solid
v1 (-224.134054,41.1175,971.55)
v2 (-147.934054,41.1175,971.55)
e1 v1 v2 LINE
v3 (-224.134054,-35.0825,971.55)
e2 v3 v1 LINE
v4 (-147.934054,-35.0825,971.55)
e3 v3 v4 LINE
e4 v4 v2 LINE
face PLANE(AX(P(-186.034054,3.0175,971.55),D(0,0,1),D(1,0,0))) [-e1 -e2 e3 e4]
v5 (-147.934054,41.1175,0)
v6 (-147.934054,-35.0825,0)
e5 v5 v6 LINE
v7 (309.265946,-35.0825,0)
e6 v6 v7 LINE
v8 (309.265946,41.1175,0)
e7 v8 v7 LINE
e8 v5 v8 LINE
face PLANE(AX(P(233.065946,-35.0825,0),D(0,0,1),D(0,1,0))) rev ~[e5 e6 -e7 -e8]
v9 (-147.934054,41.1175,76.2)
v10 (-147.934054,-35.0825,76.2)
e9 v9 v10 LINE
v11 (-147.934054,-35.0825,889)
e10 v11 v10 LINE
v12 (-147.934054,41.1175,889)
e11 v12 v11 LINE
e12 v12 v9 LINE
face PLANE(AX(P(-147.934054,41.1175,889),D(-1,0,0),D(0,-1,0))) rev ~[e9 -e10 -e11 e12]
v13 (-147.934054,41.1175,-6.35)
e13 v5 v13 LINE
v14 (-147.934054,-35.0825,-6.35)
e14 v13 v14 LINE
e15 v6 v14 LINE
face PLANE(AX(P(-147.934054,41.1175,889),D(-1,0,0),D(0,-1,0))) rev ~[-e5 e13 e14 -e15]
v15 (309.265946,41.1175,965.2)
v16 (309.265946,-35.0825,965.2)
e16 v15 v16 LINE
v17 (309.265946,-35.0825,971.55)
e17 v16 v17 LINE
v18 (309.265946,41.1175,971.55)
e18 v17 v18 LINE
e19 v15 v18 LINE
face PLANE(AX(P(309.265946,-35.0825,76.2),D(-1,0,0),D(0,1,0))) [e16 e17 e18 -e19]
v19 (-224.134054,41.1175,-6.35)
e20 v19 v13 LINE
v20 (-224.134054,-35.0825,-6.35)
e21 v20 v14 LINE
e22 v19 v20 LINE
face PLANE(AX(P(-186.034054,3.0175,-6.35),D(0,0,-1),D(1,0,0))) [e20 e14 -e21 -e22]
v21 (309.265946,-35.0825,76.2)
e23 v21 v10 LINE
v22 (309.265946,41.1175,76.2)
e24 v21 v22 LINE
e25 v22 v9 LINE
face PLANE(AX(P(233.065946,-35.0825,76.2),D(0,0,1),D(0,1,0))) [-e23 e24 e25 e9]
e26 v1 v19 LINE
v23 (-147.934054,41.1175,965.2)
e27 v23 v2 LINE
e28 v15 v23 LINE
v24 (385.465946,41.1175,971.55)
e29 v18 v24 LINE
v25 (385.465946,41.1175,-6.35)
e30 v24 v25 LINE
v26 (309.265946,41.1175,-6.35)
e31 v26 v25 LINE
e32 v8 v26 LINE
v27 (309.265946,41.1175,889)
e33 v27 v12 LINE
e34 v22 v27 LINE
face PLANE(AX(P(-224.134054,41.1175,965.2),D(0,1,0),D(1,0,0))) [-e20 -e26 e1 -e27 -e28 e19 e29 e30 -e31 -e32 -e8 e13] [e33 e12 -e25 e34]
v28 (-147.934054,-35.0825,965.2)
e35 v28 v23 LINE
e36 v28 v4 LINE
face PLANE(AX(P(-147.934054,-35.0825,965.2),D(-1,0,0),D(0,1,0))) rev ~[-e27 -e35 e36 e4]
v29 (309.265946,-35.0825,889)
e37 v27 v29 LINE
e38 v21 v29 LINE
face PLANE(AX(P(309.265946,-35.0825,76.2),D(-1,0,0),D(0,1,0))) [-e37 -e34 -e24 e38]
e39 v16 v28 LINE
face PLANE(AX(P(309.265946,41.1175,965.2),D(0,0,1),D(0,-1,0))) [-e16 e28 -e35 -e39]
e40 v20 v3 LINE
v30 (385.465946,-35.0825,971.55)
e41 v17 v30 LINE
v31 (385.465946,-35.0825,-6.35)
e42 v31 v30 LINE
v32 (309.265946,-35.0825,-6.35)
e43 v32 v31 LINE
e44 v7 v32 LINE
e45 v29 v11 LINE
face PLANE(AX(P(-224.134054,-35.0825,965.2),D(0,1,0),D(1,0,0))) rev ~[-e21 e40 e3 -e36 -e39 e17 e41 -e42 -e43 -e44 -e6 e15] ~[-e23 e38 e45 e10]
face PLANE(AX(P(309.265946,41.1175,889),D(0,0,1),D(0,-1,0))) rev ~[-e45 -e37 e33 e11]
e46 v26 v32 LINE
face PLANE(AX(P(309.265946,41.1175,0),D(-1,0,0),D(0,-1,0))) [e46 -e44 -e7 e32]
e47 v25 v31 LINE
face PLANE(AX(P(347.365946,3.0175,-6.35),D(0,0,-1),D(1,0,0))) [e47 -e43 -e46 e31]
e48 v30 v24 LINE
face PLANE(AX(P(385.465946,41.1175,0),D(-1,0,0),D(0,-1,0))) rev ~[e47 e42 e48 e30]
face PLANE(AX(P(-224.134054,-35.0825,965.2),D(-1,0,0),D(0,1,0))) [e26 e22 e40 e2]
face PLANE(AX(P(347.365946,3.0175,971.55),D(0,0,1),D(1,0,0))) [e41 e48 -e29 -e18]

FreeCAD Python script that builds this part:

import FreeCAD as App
import Part
import Sketcher
Q = App.Units.Quantity

doc = App.newDocument("Part")
body = doc.addObject("PartDesign::Body", "Body")

sketch1 = body.newObject("Sketcher::SketchObject", "Sketch")
sketch1.AttachmentSupport = (doc.getObject("XY_Plane"), [""])
sketch1.MapMode = "FlatFace"
sketch1.addGeometry([
    Part.LineSegment(App.Vector(-224, 41, 0), App.Vector(-224, -35, 0)),
    Part.LineSegment(App.Vector(-224, -35, 0), App.Vector(233, -35, 0)),
    Part.LineSegment(App.Vector(233, -35, 0), App.Vector(233, 41, 0)),
    Part.LineSegment(App.Vector(233, 41, 0), App.Vector(-224, 41, 0)),
], False)
sketch1.addConstraint([
    Sketcher.Constraint("Coincident", 0, 2, 1, 1),
    Sketcher.Constraint("Coincident", 1, 2, 2, 1),
    Sketcher.Constraint("Coincident", 2, 2, 3, 1),
    Sketcher.Constraint("Coincident", 3, 2, 0, 1),
    Sketcher.Constraint("Vertical", 0),
    Sketcher.Constraint("Horizontal", 1),
    Sketcher.Constraint("Vertical", 2),
    Sketcher.Constraint("Horizontal", 3),
    Sketcher.Constraint("DistanceX", 1, 1, 1, 2, Q("18 in")),
    Sketcher.Constraint("DistanceY", 0, 2, 0, 1, Q("3 in")),
    Sketcher.Constraint("DistanceY", 0, 2, -1, 1, Q("35.0825 mm")),
    Sketcher.Constraint("DistanceX", 0, 2, -1, 1, Q("224.134054 mm")),
])
pad1 = body.newObject("PartDesign::Pad", "Pad")
pad1.Profile = sketch1
pad1.Length = Q("3 in")

sketch2 = body.newObject("Sketcher::SketchObject", "Sketch001")
sketch2.AttachmentSupport = (doc.getObject("YZ_Plane"), [""])
sketch2.MapMode = "FlatFace"
sketch2.AttachmentOffset = App.Placement(App.Vector(0, 0, 233.065946), App.Rotation())
sketch2.addGeometry([
    Part.LineSegment(App.Vector(-35, 76, 0), App.Vector(-35, 0, 0)),
    Part.LineSegment(App.Vector(-35, 0, 0), App.Vector(41, 0, 0)),
    Part.LineSegment(App.Vector(41, 0, 0), App.Vector(41, 76, 0)),
    Part.LineSegment(App.Vector(41, 76, 0), App.Vector(-35, 76, 0)),
], False)
sketch2.addConstraint([
    Sketcher.Constraint("Coincident", 0, 2, 1, 1),
    Sketcher.Constraint("Coincident", 1, 2, 2, 1),
    Sketcher.Constraint("Coincident", 2, 2, 3, 1),
    Sketcher.Constraint("Coincident", 3, 2, 0, 1),
    Sketcher.Constraint("Vertical", 0),
    Sketcher.Constraint("Horizontal", 1),
    Sketcher.Constraint("Vertical", 2),
    Sketcher.Constraint("Horizontal", 3),
    Sketcher.Constraint("PointOnObject", 0, 2, -1),
    Sketcher.Constraint("Equal", 3, 0),
    Sketcher.Constraint("DistanceX", 1, 1, 1, 2, Q("3 in")),
    Sketcher.Constraint("DistanceX", 0, 2, -1, 1, Q("35.0825 mm")),
])
pad2 = body.newObject("PartDesign::Pad", "Pad001")
pad2.Profile = sketch2
pad2.Length = Q("6 in")

sketch3 = body.newObject("Sketcher::SketchObject", "Sketch002")
sketch3.AttachmentSupport = (doc.getObject("XY_Plane"), [""])
sketch3.MapMode = "FlatFace"
sketch3.AttachmentOffset = App.Placement(App.Vector(0, 0, 3 * 25.4), App.Rotation())
sketch3.addGeometry([
    Part.LineSegment(App.Vector(309, 41, 0), App.Vector(309, -35, 0)),
    Part.LineSegment(App.Vector(309, -35, 0), App.Vector(385, -35, 0)),
    Part.LineSegment(App.Vector(385, -35, 0), App.Vector(385, 41, 0)),
    Part.LineSegment(App.Vector(385, 41, 0), App.Vector(309, 41, 0)),
], False)
sketch3.addConstraint([
    Sketcher.Constraint("Coincident", 0, 2, 1, 1),
    Sketcher.Constraint("Coincident", 1, 2, 2, 1),
    Sketcher.Constraint("Coincident", 2, 2, 3, 1),
    Sketcher.Constraint("Coincident", 3, 2, 0, 1),
    Sketcher.Constraint("Vertical", 0),
    Sketcher.Constraint("Horizontal", 1),
    Sketcher.Constraint("Vertical", 2),
    Sketcher.Constraint("Horizontal", 3),
    Sketcher.Constraint("Equal", 3, 0),
    Sketcher.Constraint("DistanceX", 1, 1, 1, 2, Q("3 in")),
    Sketcher.Constraint("DistanceY", 0, 2, -1, 1, Q("35.0825 mm")),
    Sketcher.Constraint("DistanceX", -1, 1, 0, 2, Q("309.265946 mm")),
])
pad3 = body.newObject("PartDesign::Pad", "Pad002")
pad3.Profile = sketch3
pad3.Length = Q("35.25 in")

sketch4 = body.newObject("Sketcher::SketchObject", "Sketch003")
sketch4.AttachmentSupport = (doc.getObject("XY_Plane"), [""])
sketch4.MapMode = "FlatFace"
sketch4.addGeometry([
    Part.LineSegment(App.Vector(309, -35, 0), App.Vector(309, 41, 0)),
    Part.LineSegment(App.Vector(309, 41, 0), App.Vector(385, 41, 0)),
    Part.LineSegment(App.Vector(385, 41, 0), App.Vector(385, -35, 0)),
    Part.LineSegment(App.Vector(385, -35, 0), App.Vector(309, -35, 0)),
], False)
sketch4.addConstraint([
    Sketcher.Constraint("Coincident", 0, 2, 1, 1),
    Sketcher.Constraint("Coincident", 1, 2, 2, 1),
    Sketcher.Constraint("Coincident", 2, 2, 3, 1),
    Sketcher.Constraint("Coincident", 3, 2, 0, 1),
    Sketcher.Constraint("Vertical", 0),
    Sketcher.Constraint("Horizontal", 1),
    Sketcher.Constraint("Vertical", 2),
    Sketcher.Constraint("Horizontal", 3),
    Sketcher.Constraint("Equal", 3, 0),
    Sketcher.Constraint("DistanceX", 1, 1, 1, 2, Q("3 in")),
    Sketcher.Constraint("DistanceY", -1, 1, 0, 2, Q("41.1175 mm")),
    Sketcher.Constraint("DistanceX", -1, 1, 0, 2, Q("309.265946 mm")),
])
pad4 = body.newObject("PartDesign::Pad", "Pad003")
pad4.Profile = sketch4
pad4.Length = Q("0.25 in")
pad4.Reversed = True

sketch5 = body.newObject("Sketcher::SketchObject", "Sketch004")
sketch5.AttachmentSupport = (doc.getObject("YZ_Plane"), [""])
sketch5.MapMode = "FlatFace"
sketch5.AttachmentOffset = App.Placement(App.Vector(0, 0, 309.265946), App.Rotation())
sketch5.addGeometry([
    Part.LineSegment(App.Vector(41, 965, 0), App.Vector(41, 889, 0)),
    Part.LineSegment(App.Vector(41, 889, 0), App.Vector(-35, 889, 0)),
    Part.LineSegment(App.Vector(-35, 889, 0), App.Vector(-35, 965, 0)),
    Part.LineSegment(App.Vector(-35, 965, 0), App.Vector(41, 965, 0)),
], False)
sketch5.addConstraint([
    Sketcher.Constraint("Coincident", 0, 2, 1, 1),
    Sketcher.Constraint("Coincident", 1, 2, 2, 1),
    Sketcher.Constraint("Coincident", 2, 2, 3, 1),
    Sketcher.Constraint("Coincident", 3, 2, 0, 1),
    Sketcher.Constraint("Vertical", 0),
    Sketcher.Constraint("Horizontal", 1),
    Sketcher.Constraint("Vertical", 2),
    Sketcher.Constraint("Horizontal", 3),
    Sketcher.Constraint("Equal", 3, 0),
    Sketcher.Constraint("DistanceX", 1, 2, 1, 1, Q("3 in")),
    Sketcher.Constraint("DistanceY", -1, 1, 0, 2, Q("35 in")),
    Sketcher.Constraint("DistanceX", -1, 1, 0, 2, Q("41.1175 mm")),
])
pad5 = body.newObject("PartDesign::Pad", "Pad004")
pad5.Profile = sketch5
pad5.Length = Q("21 in")
pad5.Reversed = True

sketch6 = body.newObject("Sketcher::SketchObject", "Sketch005")
sketch6.AttachmentSupport = (doc.getObject("XY_Plane"), [""])
sketch6.MapMode = "FlatFace"
sketch6.AttachmentOffset = App.Placement(App.Vector(0, 0, 35 * 25.4), App.Rotation())
sketch6.addGeometry([
    Part.LineSegment(App.Vector(-224, -35, 0), App.Vector(-224, 41, 0)),
    Part.LineSegment(App.Vector(-224, 41, 0), App.Vector(-148, 41, 0)),
    Part.LineSegment(App.Vector(-148, 41, 0), App.Vector(-148, -35, 0)),
    Part.LineSegment(App.Vector(-148, -35, 0), App.Vector(-224, -35, 0)),
], False)
sketch6.addConstraint([
    Sketcher.Constraint("Coincident", 0, 2, 1, 1),
    Sketcher.Constraint("Coincident", 1, 2, 2, 1),
    Sketcher.Constraint("Coincident", 2, 2, 3, 1),
    Sketcher.Constraint("Coincident", 3, 2, 0, 1),
    Sketcher.Constraint("Vertical", 0),
    Sketcher.Constraint("Horizontal", 1),
    Sketcher.Constraint("Vertical", 2),
    Sketcher.Constraint("Horizontal", 3),
    Sketcher.Constraint("Equal", 3, 0),
    Sketcher.Constraint("DistanceX", 1, 1, 1, 2, Q("3 in")),
    Sketcher.Constraint("DistanceY", -1, 1, 0, 2, Q("41.1175 mm")),
    Sketcher.Constraint("DistanceX", 0, 2, -1, 1, Q("224.134054 mm")),
])
pad6 = body.newObject("PartDesign::Pad", "Pad005")
pad6.Profile = sketch6
pad6.Length = Q("35.25 in")
pad6.Reversed = True

sketch7 = body.newObject("Sketcher::SketchObject", "Sketch006")
sketch7.AttachmentSupport = (doc.getObject("XY_Plane"), [""])
sketch7.MapMode = "FlatFace"
sketch7.AttachmentOffset = App.Placement(App.Vector(0, 0, 38 * 25.4), App.Rotation())
sketch7.addGeometry([
    Part.LineSegment(App.Vector(-224, 41, 0), App.Vector(-224, -35, 0)),
    Part.LineSegment(App.Vector(-224, -35, 0), App.Vector(-148, -35, 0)),
    Part.LineSegment(App.Vector(-148, -35, 0), App.Vector(-148, 41, 0)),
    Part.LineSegment(App.Vector(-148, 41, 0), App.Vector(-224, 41, 0)),
], False)
sketch7.addConstraint([
    Sketcher.Constraint("Coincident", 0, 2, 1, 1),
    Sketcher.Constraint("Coincident", 1, 2, 2, 1),
    Sketcher.Constraint("Coincident", 2, 2, 3, 1),
    Sketcher.Constraint("Coincident", 3, 2, 0, 1),
    Sketcher.Constraint("Vertical", 0),
    Sketcher.Constraint("Horizontal", 1),
    Sketcher.Constraint("Vertical", 2),
    Sketcher.Constraint("Horizontal", 3),
    Sketcher.Constraint("Equal", 3, 0),
    Sketcher.Constraint("DistanceX", 1, 1, 1, 2, Q("3 in")),
    Sketcher.Constraint("DistanceY", 0, 2, -1, 1, Q("35.0825 mm")),
    Sketcher.Constraint("DistanceX", 0, 2, -1, 1, Q("224.134054 mm")),
])
pad7 = body.newObject("PartDesign::Pad", "Pad006")
pad7.Profile = sketch7
pad7.Length = Q("0.25 in")

doc.recompute()
